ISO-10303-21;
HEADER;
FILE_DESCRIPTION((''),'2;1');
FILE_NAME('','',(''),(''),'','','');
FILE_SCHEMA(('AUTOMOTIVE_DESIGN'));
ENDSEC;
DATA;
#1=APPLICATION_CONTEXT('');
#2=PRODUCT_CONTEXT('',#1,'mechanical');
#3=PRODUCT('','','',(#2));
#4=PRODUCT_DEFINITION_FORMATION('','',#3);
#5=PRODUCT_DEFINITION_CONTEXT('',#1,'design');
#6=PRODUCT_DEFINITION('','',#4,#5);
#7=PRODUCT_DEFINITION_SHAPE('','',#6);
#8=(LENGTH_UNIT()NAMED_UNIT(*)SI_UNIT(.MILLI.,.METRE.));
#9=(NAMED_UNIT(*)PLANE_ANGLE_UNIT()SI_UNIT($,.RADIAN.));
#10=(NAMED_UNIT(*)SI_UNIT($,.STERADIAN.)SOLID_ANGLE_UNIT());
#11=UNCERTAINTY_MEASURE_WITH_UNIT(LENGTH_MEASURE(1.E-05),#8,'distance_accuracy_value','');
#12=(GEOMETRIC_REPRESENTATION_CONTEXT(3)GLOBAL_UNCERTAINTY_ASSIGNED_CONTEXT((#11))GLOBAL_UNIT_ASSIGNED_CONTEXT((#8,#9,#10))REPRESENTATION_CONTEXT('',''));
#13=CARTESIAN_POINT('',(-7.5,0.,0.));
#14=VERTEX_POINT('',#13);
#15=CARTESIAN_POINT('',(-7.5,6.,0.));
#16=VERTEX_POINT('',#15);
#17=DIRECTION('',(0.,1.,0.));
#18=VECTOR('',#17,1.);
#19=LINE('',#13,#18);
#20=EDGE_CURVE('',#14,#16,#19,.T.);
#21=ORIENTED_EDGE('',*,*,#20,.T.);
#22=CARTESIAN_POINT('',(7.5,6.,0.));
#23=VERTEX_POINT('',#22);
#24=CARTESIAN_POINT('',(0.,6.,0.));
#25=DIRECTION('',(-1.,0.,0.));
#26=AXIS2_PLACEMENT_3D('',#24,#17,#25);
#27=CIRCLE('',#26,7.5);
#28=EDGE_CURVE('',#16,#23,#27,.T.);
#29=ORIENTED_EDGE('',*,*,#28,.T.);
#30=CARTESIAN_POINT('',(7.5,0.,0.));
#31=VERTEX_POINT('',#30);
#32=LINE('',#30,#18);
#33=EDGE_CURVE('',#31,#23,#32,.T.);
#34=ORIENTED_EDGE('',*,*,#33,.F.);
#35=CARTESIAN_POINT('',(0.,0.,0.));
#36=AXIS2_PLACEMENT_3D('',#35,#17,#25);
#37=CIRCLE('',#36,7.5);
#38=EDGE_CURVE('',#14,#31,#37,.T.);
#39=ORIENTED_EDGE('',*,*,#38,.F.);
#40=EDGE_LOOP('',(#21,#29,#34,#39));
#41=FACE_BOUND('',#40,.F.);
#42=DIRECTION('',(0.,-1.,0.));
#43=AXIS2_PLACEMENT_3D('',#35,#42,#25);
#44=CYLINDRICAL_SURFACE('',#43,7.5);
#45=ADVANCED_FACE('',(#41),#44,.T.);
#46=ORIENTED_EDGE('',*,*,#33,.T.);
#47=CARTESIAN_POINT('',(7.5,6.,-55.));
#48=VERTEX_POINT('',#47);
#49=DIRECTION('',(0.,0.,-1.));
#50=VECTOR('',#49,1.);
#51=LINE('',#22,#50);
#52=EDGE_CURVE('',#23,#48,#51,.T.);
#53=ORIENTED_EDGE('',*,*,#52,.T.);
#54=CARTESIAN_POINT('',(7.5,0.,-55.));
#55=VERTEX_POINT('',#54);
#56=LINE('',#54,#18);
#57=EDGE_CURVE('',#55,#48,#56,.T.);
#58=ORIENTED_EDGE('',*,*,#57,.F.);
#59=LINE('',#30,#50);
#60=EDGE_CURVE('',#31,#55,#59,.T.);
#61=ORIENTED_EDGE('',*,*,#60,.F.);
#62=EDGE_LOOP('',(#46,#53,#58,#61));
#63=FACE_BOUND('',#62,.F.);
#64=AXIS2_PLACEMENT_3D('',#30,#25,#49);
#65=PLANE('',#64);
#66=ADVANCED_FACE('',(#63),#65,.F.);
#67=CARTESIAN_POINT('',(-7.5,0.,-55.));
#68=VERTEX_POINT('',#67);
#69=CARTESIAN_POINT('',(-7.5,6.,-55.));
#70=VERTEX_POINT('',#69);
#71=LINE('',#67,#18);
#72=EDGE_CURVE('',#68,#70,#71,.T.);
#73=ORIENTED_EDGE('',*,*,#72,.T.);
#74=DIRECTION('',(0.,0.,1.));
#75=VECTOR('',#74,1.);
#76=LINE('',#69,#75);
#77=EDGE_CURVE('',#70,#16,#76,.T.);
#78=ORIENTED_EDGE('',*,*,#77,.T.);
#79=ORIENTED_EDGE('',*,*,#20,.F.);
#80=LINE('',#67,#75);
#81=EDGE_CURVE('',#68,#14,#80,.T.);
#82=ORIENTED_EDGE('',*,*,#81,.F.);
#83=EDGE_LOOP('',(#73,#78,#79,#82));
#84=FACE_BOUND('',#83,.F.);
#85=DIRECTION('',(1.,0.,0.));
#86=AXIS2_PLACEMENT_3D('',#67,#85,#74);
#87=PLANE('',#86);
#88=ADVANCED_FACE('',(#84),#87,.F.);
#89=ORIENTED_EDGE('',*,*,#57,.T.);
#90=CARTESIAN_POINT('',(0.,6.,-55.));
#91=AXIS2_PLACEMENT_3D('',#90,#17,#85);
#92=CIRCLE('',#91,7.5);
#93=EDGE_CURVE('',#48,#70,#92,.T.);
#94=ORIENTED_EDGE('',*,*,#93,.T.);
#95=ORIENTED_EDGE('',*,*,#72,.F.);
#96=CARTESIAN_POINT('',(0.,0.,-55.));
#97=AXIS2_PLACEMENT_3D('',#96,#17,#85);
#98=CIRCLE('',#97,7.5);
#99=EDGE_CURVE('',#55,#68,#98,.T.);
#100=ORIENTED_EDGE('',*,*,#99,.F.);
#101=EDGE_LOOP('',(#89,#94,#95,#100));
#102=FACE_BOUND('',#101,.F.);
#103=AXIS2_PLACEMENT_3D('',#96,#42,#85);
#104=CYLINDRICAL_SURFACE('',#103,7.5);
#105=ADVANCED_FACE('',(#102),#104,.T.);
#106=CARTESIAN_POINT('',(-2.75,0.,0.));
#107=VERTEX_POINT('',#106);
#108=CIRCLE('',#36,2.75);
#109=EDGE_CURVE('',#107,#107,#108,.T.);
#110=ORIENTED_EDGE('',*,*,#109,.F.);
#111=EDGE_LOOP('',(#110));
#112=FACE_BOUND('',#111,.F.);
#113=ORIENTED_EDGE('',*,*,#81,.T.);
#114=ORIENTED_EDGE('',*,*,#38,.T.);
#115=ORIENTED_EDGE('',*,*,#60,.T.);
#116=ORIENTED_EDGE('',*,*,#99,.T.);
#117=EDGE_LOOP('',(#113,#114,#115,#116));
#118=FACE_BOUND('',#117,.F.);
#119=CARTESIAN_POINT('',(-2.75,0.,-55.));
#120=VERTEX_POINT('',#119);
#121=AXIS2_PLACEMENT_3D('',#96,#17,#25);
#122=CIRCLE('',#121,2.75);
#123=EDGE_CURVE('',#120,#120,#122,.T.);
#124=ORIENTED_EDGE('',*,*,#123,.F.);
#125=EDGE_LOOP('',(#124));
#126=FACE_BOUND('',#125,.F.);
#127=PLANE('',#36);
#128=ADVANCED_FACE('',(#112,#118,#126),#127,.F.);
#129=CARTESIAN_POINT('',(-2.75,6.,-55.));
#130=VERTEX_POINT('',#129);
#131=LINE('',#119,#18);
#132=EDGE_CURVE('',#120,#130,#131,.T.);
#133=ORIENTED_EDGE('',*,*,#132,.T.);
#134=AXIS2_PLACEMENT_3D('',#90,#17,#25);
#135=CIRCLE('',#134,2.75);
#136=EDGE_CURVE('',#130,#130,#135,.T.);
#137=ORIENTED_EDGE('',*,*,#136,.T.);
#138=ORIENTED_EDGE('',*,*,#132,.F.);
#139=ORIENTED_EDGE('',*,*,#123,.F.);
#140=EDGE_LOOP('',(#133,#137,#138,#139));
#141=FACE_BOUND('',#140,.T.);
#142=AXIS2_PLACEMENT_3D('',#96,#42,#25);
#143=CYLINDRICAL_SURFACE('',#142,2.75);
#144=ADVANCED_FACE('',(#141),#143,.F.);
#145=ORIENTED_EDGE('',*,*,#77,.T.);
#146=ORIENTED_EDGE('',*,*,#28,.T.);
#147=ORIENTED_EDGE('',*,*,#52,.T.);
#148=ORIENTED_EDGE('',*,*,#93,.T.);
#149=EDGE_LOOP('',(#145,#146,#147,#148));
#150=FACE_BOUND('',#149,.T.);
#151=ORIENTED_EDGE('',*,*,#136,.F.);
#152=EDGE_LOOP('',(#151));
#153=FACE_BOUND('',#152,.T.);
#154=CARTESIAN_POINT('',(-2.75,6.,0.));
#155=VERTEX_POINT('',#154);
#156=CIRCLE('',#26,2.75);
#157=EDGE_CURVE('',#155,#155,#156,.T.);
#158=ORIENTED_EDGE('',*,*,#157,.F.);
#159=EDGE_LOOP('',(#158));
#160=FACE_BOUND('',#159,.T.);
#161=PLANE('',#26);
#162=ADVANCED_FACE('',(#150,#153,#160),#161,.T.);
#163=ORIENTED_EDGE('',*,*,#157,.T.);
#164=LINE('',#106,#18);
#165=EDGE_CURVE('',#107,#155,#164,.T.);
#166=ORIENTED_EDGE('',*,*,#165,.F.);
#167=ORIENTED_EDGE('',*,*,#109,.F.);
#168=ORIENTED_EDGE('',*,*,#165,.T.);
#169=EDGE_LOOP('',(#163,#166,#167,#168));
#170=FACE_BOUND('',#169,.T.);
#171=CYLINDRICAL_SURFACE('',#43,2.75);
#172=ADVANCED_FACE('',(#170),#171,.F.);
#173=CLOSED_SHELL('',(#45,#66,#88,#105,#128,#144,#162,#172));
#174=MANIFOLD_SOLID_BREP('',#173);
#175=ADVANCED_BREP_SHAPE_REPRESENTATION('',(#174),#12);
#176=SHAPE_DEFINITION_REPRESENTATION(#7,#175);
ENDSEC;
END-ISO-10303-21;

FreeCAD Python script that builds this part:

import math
import FreeCAD as App
import Part
import Sketcher

V = App.Vector
Q = App.Units.Quantity

doc = App.newDocument("Part")
body = doc.addObject("PartDesign::Body", "Body")

# Sketch on XZ plane
sketch1 = doc.addObject("Sketcher::SketchObject", "Sketch")
body.addObject(sketch1)
sketch1.AttachmentSupport = (doc.XZ_Plane, [""])
sketch1.MapMode = "FlatFace"
sketch1.addGeometry([
    Part.ArcOfCircle(Part.Circle(V(0, 0, 0), V(0, 0, 1), 7.5), math.radians(0), math.radians(180)),  # 0
    Part.LineSegment(V(7.5, 0, 0), V(7.5, -55, 0)),  # 1
    Part.ArcOfCircle(Part.Circle(V(0, -55, 0), V(0, 0, 1), 7.5), math.radians(180), math.radians(360)),  # 2
    Part.LineSegment(V(-7.5, -55, 0), V(-7.5, 0, 0)),  # 3
    Part.Circle(V(0, -55, 0), V(0, 0, 1), 2.8),  # 4
    Part.Circle(V(0, 0, 0), V(0, 0, 1), 2.8),  # 5
], False)
sketch1.addConstraint([
    Sketcher.Constraint("Tangent", 0, 1, 1, 1),
    Sketcher.Constraint("Tangent", 1, 2, 2, 2),
    Sketcher.Constraint("Tangent", 2, 1, 3, 1),
    Sketcher.Constraint("Tangent", 3, 2, 0, 2),
    Sketcher.Constraint("Vertical", 1),
    Sketcher.Constraint("Vertical", 3),
    Sketcher.Constraint("Coincident", 0, 3, -1, 1),
    Sketcher.Constraint("Coincident", 5, 3, -1, 1),
    Sketcher.Constraint("Coincident", 4, 3, 2, 3),
    Sketcher.Constraint("Equal", 4, 5),
    Sketcher.Constraint("Diameter", 4, Q("5.5 mm")),
    Sketcher.Constraint("Radius", 0, Q("7.5 mm")),
    Sketcher.Constraint("DistanceY", 1, 2, 1, 1, Q("55 mm")),
])
pad1 = doc.addObject("PartDesign::Pad", "Pad")
body.addObject(pad1)
pad1.Profile = sketch1
pad1.Length = 6
pad1.Reversed = True

doc.recompute()
